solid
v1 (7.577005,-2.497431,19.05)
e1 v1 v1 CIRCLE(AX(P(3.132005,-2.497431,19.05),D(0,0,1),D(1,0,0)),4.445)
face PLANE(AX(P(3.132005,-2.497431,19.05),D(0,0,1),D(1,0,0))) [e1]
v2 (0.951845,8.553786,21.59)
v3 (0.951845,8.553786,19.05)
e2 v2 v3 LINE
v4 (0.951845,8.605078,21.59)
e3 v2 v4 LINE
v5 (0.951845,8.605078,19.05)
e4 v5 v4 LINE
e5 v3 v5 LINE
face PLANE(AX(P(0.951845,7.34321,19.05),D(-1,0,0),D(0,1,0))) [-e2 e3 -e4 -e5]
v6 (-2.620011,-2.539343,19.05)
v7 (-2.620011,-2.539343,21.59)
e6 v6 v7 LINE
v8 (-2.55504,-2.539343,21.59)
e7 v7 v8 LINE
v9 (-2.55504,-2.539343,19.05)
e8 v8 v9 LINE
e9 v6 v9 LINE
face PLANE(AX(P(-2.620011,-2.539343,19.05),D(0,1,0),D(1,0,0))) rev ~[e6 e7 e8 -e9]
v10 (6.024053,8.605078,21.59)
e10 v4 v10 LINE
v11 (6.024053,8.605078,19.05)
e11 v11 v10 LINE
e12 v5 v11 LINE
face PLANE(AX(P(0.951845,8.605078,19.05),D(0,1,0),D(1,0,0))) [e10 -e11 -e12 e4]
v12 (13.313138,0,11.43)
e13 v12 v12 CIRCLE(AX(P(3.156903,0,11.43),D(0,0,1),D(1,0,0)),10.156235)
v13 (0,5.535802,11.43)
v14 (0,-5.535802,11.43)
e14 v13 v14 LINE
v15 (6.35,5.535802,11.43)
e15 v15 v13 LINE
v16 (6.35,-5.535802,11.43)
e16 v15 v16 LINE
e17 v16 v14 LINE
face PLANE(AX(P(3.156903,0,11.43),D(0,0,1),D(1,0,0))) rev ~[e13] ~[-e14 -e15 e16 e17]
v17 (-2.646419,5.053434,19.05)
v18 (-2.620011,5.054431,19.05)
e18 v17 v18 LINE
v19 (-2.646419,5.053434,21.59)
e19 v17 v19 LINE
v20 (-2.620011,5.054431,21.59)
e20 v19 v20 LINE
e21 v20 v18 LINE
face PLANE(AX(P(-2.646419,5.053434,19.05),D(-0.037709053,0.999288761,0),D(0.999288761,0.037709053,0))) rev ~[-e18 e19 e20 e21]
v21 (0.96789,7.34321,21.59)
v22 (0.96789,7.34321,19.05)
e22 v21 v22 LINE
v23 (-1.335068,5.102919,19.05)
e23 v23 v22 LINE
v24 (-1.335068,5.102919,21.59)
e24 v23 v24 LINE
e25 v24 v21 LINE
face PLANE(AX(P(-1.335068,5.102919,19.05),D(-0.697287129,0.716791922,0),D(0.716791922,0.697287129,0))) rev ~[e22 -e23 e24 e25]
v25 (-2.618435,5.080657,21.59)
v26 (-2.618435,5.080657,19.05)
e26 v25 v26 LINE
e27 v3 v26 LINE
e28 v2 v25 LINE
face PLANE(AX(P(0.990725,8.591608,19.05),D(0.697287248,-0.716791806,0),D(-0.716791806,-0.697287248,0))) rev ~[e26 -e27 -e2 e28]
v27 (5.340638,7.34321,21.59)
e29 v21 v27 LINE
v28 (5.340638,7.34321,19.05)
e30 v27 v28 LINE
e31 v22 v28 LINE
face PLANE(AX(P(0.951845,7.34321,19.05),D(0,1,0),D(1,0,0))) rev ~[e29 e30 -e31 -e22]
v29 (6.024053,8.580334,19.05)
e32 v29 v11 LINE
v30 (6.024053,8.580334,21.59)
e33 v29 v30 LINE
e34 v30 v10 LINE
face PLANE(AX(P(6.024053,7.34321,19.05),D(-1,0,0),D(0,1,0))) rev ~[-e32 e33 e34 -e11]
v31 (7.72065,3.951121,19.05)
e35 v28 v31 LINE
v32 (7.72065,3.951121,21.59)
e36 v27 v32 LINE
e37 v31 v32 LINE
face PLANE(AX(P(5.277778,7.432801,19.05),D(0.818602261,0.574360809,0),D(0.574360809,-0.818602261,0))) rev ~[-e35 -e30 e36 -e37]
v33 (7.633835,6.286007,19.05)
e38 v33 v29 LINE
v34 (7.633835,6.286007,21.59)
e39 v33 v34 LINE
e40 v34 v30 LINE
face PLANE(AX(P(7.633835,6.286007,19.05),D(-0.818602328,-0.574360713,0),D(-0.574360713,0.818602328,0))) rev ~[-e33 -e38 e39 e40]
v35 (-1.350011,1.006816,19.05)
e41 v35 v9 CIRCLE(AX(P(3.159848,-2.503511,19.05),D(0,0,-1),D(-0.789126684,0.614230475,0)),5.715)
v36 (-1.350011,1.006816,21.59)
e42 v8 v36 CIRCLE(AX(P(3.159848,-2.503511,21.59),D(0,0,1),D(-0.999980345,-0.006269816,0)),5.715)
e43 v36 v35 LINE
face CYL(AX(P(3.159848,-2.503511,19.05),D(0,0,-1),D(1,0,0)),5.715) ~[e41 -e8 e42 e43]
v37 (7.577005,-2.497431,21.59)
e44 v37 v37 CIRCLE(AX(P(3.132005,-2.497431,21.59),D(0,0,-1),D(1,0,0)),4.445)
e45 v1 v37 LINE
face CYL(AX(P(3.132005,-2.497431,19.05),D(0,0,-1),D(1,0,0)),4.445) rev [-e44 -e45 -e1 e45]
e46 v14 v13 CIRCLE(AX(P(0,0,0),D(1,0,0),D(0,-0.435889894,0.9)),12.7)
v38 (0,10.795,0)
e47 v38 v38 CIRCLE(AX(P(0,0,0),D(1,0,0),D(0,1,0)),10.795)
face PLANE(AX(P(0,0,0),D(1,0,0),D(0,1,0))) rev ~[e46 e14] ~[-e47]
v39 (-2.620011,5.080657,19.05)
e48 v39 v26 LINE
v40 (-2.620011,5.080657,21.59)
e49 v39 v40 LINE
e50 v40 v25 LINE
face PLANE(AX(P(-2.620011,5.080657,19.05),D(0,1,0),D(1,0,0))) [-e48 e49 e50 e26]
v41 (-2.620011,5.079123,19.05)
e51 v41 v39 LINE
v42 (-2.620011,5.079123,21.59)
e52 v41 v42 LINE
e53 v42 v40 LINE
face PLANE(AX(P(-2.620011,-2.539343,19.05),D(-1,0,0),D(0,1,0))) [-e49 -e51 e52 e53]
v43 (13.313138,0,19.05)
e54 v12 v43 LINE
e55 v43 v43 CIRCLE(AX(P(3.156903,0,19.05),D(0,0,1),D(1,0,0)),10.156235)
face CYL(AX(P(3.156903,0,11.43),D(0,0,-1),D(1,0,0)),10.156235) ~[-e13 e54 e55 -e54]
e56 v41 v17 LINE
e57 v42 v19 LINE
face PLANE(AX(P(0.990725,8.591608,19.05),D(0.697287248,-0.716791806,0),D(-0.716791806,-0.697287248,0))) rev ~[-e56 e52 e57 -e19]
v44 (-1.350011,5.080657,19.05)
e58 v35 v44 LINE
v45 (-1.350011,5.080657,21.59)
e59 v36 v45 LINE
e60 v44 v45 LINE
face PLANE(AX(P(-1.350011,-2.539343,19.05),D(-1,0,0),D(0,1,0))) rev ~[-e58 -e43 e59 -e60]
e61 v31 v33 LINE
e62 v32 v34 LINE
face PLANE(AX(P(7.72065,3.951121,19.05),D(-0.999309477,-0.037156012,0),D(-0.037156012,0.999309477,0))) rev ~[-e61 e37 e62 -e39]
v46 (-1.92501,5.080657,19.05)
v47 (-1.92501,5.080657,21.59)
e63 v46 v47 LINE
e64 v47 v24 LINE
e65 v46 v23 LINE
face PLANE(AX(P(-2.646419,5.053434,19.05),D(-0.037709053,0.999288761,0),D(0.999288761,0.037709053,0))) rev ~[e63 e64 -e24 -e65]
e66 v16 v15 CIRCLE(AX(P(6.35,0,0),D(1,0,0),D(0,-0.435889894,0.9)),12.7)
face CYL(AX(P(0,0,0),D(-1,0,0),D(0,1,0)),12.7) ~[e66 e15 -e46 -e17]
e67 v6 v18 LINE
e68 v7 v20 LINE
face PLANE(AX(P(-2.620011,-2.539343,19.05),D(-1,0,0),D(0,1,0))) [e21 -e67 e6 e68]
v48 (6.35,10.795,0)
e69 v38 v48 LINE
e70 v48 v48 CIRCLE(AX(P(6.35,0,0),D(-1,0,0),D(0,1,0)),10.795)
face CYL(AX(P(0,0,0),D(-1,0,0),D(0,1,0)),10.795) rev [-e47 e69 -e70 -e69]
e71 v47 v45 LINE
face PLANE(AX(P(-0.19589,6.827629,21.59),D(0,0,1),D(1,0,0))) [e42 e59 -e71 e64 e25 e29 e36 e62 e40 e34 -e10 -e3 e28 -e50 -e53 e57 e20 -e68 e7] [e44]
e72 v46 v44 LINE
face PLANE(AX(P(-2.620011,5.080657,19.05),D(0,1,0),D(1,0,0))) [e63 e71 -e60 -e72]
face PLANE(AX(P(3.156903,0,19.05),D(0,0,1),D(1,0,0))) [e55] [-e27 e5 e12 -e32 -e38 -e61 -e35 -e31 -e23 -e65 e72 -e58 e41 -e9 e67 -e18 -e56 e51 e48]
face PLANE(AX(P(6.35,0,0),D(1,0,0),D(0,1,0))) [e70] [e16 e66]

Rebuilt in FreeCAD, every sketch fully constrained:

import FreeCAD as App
import Part
import Sketcher
from FreeCAD import Vector
Q = App.Units.Quantity

doc = App.newDocument("Part")
body = doc.addObject("PartDesign::Body", "Body")

sketch1 = body.newObject("Sketcher::SketchObject", "Sketch")
sketch1.AttachmentSupport = (doc.getObject("YZ_Plane"), [""])
sketch1.MapMode = "FlatFace"
sketch1.addGeometry(Part.Circle(Vector(0, 0, 0), Vector(0, 0, 1), 12.7), False)
sketch1.addConstraint([
    Sketcher.Constraint("Coincident", 0, 3, -1, 1),
    Sketcher.Constraint("Diameter", 0, Q("1 in")),
])
pad1 = body.newObject("PartDesign::Pad", "Pad")
pad1.Profile = sketch1
pad1.Length = Q("0.25 in")

sketch2 = body.newObject("Sketcher::SketchObject", "Sketch001")
sketch2.AttachmentSupport = (doc.getObject("YZ_Plane"), [""])
sketch2.MapMode = "FlatFace"
sketch2.addGeometry(Part.Circle(Vector(0, 0, 0), Vector(0, 0, 1), 10.795), False)
sketch2.addConstraint([
    Sketcher.Constraint("Coincident", 0, 3, -1, 1),
    Sketcher.Constraint("Diameter", 0, Q("0.85 in")),
])
pocket1 = body.newObject("PartDesign::Pocket", "Pocket")
pocket1.Profile = sketch2
pocket1.Length = 55.83853
pocket1.Reversed = True

sketch3 = body.newObject("Sketcher::SketchObject", "Sketch002")
sketch3.AttachmentSupport = (doc.getObject("XY_Plane"), [""])
sketch3.MapMode = "FlatFace"
sketch3.AttachmentOffset = App.Placement(Vector(0, 0, 0.45 * 25.4), App.Rotation())
sketch3.addGeometry(Part.Circle(Vector(3.156903, 0, 0), Vector(0, 0, 1), 10.156235), False)
sketch3.addConstraint([
    Sketcher.Constraint("PointOnObject", 0, 3, -1),
    Sketcher.Constraint("Diameter", 0, 20.31247),
    Sketcher.Constraint("DistanceX", -1, 1, 0, 3, 3.156903),
])
pad2 = body.newObject("PartDesign::Pad", "Pad001")
pad2.Profile = sketch3
pad2.Length = Q("0.3 in")

sketch4 = body.newObject("Sketcher::SketchObject", "Sketch003")
sketch4.AttachmentSupport = (doc.getObject("XY_Plane"), [""])
sketch4.MapMode = "FlatFace"
sketch4.AttachmentOffset = App.Placement(Vector(0, 0, 0.75 * 25.4), App.Rotation())
sketch4.addGeometry(Part.Circle(Vector(3.159848, -2.503511, 0), Vector(0, 0, 1), 5.715), False)
sketch4.addConstraint([
    Sketcher.Constraint("Diameter", 0, Q("0.45 in")),
    Sketcher.Constraint("DistanceX", -1, 1, 0, 3, 3.159848),
    Sketcher.Constraint("DistanceY", 0, 3, -1, 1, 2.503511),
])
pad3 = body.newObject("PartDesign::Pad", "Pad002")
pad3.Profile = sketch4
pad3.Length = Q("0.1 in")

sketch5 = body.newObject("Sketcher::SketchObject", "Sketch004")
sketch5.AttachmentSupport = (doc.getObject("XY_Plane"), [""])
sketch5.MapMode = "FlatFace"
sketch5.AttachmentOffset = App.Placement(Vector(0, 0, 0.75 * 25.4), App.Rotation())
sketch5.addGeometry(Part.Circle(Vector(3.132005, -2.497431, 0), Vector(0, 0, 1), 4.445), False)
sketch5.addConstraint([
    Sketcher.Constraint("Diameter", 0, Q("0.35 in")),
    Sketcher.Constraint("DistanceY", 0, 3, -1, 1, 2.497431),
    Sketcher.Constraint("DistanceX", -1, 1, 0, 3, 3.132005),
])
pocket2 = body.newObject("PartDesign::Pocket", "Pocket001")
pocket2.Profile = sketch5
pocket2.Length = Q("1 in")
pocket2.Reversed = True

sketch6 = body.newObject("Sketcher::SketchObject", "Sketch005")
sketch6.AttachmentSupport = (doc.getObject("XY_Plane"), [""])
sketch6.MapMode = "FlatFace"
sketch6.AttachmentOffset = App.Placement(Vector(0, 0, 0.75 * 25.4), App.Rotation())
sketch6.addGeometry([
    Part.LineSegment(Vector(-2.620011, 5.080657, 0), Vector(-2.620011, -2.539343, 0)),
    Part.LineSegment(Vector(-2.620011, -2.539343, 0), Vector(-1.350011, -2.539343, 0)),
    Part.LineSegment(Vector(-1.350011, -2.539343, 0), Vector(-1.350011, 5.080657, 0)),
    Part.LineSegment(Vector(-1.350011, 5.080657, 0), Vector(-2.620011, 5.080657, 0)),
], False)
sketch6.addConstraint([
    Sketcher.Constraint("Coincident", 0, 2, 1, 1),
    Sketcher.Constraint("Coincident", 1, 2, 2, 1),
    Sketcher.Constraint("Coincident", 2, 2, 3, 1),
    Sketcher.Constraint("Coincident", 3, 2, 0, 1),
    Sketcher.Constraint("Vertical", 0),
    Sketcher.Constraint("Horizontal", 1),
    Sketcher.Constraint("Vertical", 2),
    Sketcher.Constraint("Horizontal", 3),
    Sketcher.Constraint("DistanceY", 0, 2, 0, 1, Q("0.3 in")),
    Sketcher.Constraint("DistanceX", 1, 1, 1, 2, Q("0.05 in")),
    Sketcher.Constraint("DistanceX", 0, 2, -1, 1, 2.620011),
    Sketcher.Constraint("DistanceY", 0, 2, -1, 1, 2.539343),
])
pad4 = body.newObject("PartDesign::Pad", "Pad003")
pad4.Profile = sketch6
pad4.Length = Q("0.1 in")

sketch7 = body.newObject("Sketcher::SketchObject", "Sketch006")
sketch7.AttachmentSupport = (doc.getObject("XY_Plane"), [""])
sketch7.MapMode = "FlatFace"
sketch7.AttachmentOffset = App.Placement(Vector(0, 0, 0.75 * 25.4), App.Rotation())
sketch7.addGeometry([
    Part.LineSegment(Vector(0.990725, 8.591608, 0), Vector(-2.646419, 5.053434, 0)),
    Part.LineSegment(Vector(-2.646419, 5.053434, 0), Vector(-1.335068, 5.102919, 0)),
    Part.LineSegment(Vector(-1.335068, 5.102919, 0), Vector(2.251208, 8.591608, 0)),
    Part.LineSegment(Vector(2.251208, 8.591608, 0), Vector(0.990725, 8.591608, 0)),
], False)
sketch7.addConstraint([
    Sketcher.Constraint("Coincident", 0, 2, 1, 1),
    Sketcher.Constraint("Coincident", 1, 2, 2, 1),
    Sketcher.Constraint("Coincident", 2, 2, 3, 1),
    Sketcher.Constraint("Coincident", 3, 2, 0, 1),
    Sketcher.Constraint("Horizontal", 3),
    Sketcher.Constraint("Parallel", 0, 2),
    Sketcher.Constraint("Distance", 0, 5.074199),
    Sketcher.Constraint("Distance", 2, 5.003232),
    Sketcher.Constraint("DistanceX", 3, 2, 3, 1, 1.260483),
    Sketcher.Constraint("DistanceX", 0, 2, -1, 1, 2.646419),
    Sketcher.Constraint("DistanceY", -1, 1, 1, 2, 5.102919),
    Sketcher.Constraint("DistanceX", -1, 1, 2, 2, 2.251208),
])
pad5 = body.newObject("PartDesign::Pad", "Pad004")
pad5.Profile = sketch7
pad5.Length = Q("0.1 in")

sketch8 = body.newObject("Sketcher::SketchObject", "Sketch007")
sketch8.AttachmentSupport = (doc.getObject("XY_Plane"), [""])
sketch8.MapMode = "FlatFace"
sketch8.AttachmentOffset = App.Placement(Vector(0, 0, 0.75 * 25.4), App.Rotation())
sketch8.addGeometry([
    Part.LineSegment(Vector(0.951845, 8.605078, 0), Vector(0.951845, 7.34321, 0)),
    Part.LineSegment(Vector(0.951845, 7.34321, 0), Vector(6.024053, 7.34321, 0)),
    Part.LineSegment(Vector(6.024053, 7.34321, 0), Vector(6.024053, 8.605078, 0)),
    Part.LineSegment(Vector(6.024053, 8.605078, 0), Vector(0.951845, 8.605078, 0)),
], False)
sketch8.addConstraint([
    Sketcher.Constraint("Coincident", 0, 2, 1, 1),
    Sketcher.Constraint("Coincident", 1, 2, 2, 1),
    Sketcher.Constraint("Coincident", 2, 2, 3, 1),
    Sketcher.Constraint("Coincident", 3, 2, 0, 1),
    Sketcher.Constraint("Vertical", 0),
    Sketcher.Constraint("Horizontal", 1),
    Sketcher.Constraint("Vertical", 2),
    Sketcher.Constraint("Horizontal", 3),
    Sketcher.Constraint("DistanceX", 1, 1, 1, 2, 5.072208),
    Sketcher.Constraint("DistanceY", 0, 2, 0, 1, 1.261867),
    Sketcher.Constraint("DistanceY", -1, 1, 0, 2, 7.34321),
    Sketcher.Constraint("DistanceX", -1, 1, 0, 2, 0.951845),
])
pad6 = body.newObject("PartDesign::Pad", "Pad005")
pad6.Profile = sketch8
pad6.Length = Q("0.1 in")

sketch9 = body.newObject("Sketcher::SketchObject", "Sketch008")
sketch9.AttachmentSupport = (doc.getObject("XY_Plane"), [""])
sketch9.MapMode = "FlatFace"
sketch9.AttachmentOffset = App.Placement(Vector(0, 0, 0.75 * 25.4), App.Rotation())
sketch9.addGeometry([
    Part.LineSegment(Vector(6.024053, 8.580334, 0), Vector(5.277778, 7.432801, 0)),
    Part.LineSegment(Vector(5.277778, 7.432801, 0), Vector(7.72065, 3.951121, 0)),
    Part.LineSegment(Vector(7.72065, 3.951121, 0), Vector(7.633835, 6.286007, 0)),
    Part.LineSegment(Vector(7.633835, 6.286007, 0), Vector(6.024053, 8.580334, 0)),
], False)
sketch9.addConstraint([
    Sketcher.Constraint("Coincident", 0, 2, 1, 1),
    Sketcher.Constraint("Coincident", 1, 2, 2, 1),
    Sketcher.Constraint("Coincident", 2, 2, 3, 1),
    Sketcher.Constraint("Coincident", 3, 2, 0, 1),
    Sketcher.Constraint("Parallel", 1, 3),
    Sketcher.Constraint("Distance", 1, 4.253201),
    Sketcher.Constraint("Distance", 2, 2.336499),
    Sketcher.Constraint("DistanceY", -1, 1, 0, 2, 7.432801),
    Sketcher.Constraint("DistanceX", -1, 1, 1, 2, 7.72065),
    Sketcher.Constraint("DistanceY", -1, 1, 1, 2, 3.951121),
    Sketcher.Constraint("Distance", 0, 1.368853),
    Sketcher.Constraint("Distance", 3, 2.802737),
])
pad7 = body.newObject("PartDesign::Pad", "Pad006")
pad7.Profile = sketch9
pad7.Length = Q("0.1 in")

doc.recompute()
